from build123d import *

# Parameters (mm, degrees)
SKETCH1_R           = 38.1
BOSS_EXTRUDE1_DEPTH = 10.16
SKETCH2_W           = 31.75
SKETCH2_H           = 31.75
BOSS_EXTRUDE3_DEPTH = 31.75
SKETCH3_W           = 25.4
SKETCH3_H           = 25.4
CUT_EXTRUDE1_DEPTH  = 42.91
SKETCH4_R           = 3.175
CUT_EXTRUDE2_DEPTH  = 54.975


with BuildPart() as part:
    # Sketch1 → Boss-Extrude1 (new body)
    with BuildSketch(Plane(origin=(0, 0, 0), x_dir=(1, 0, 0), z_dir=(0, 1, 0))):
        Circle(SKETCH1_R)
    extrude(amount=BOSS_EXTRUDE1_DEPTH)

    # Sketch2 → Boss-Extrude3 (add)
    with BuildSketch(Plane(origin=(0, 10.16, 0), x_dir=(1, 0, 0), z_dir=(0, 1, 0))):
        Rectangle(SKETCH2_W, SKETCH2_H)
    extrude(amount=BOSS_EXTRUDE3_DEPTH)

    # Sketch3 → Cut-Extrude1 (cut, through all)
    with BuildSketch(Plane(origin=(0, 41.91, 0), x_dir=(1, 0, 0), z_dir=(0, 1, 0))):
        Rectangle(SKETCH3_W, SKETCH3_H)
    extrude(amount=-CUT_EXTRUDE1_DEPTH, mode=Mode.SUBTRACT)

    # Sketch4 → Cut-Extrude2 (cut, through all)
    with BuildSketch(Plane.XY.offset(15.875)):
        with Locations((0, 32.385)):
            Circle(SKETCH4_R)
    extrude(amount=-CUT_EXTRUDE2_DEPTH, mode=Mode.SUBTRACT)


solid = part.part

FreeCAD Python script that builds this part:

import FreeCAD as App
import Part
import Sketcher

V = App.Vector
Q = App.Units.Quantity


def add_polygon(sketch, points):
    """Adds a closed chain of lines whose ends are joined by coincident constraints."""
    first, n = sketch.GeometryCount, len(points)
    for a, b in zip(points, points[1:] + points[:1]):
        sketch.addGeometry(Part.LineSegment(App.Vector(*a, 0), App.Vector(*b, 0)), False)
    for i in range(n):
        sketch.addConstraint(Sketcher.Constraint("Coincident", first + i, 2, first + (i + 1) % n, 1))

doc = App.newDocument("Part")
body = doc.addObject("PartDesign::Body", "Body")

sketch1 = doc.addObject("Sketcher::SketchObject", "Sketch")
body.addObject(sketch1)
sketch1.AttachmentSupport = (doc.XZ_Plane, [""])
sketch1.MapMode = "FlatFace"
sketch1.addGeometry(Part.Circle(V(0, 0, 0), V(0, 0, 1), 38), False)
sketch1.addConstraint(Sketcher.Constraint("Coincident", 0, 3, -1, 1))
sketch1.addConstraint(Sketcher.Constraint("Diameter", 0, Q("3 in")))
pad1 = doc.addObject("PartDesign::Pad", "Pad")
body.addObject(pad1)
pad1.Profile = sketch1
pad1.Length = Q("0.4 in")
pad1.Reversed = True

sketch2 = doc.addObject("Sketcher::SketchObject", "Sketch001")
body.addObject(sketch2)
sketch2.AttachmentSupport = (doc.XZ_Plane, [""])
sketch2.MapMode = "FlatFace"
sketch2.AttachmentOffset = App.Placement(V(0, 0, -0.4 * 25.4), App.Rotation())
add_polygon(sketch2, [(-16, -16), (-16, 16), (16, 16), (16, -16)])
sketch2.addConstraint(Sketcher.Constraint("Vertical", 0))
sketch2.addConstraint(Sketcher.Constraint("Horizontal", 1))
sketch2.addConstraint(Sketcher.Constraint("Vertical", 2))
sketch2.addConstraint(Sketcher.Constraint("Horizontal", 3))
sketch2.addConstraint(Sketcher.Constraint("Symmetric", 0, 2, 2, 2, -1, 1))
sketch2.addConstraint(Sketcher.Constraint("Equal", 3, 0))
sketch2.addConstraint(Sketcher.Constraint("DistanceX", 1, 1, 1, 2, Q("1.25 in")))
pad2 = doc.addObject("PartDesign::Pad", "Pad001")
body.addObject(pad2)
pad2.Profile = sketch2
pad2.Length = Q("1.25 in")
pad2.Reversed = True

sketch3 = doc.addObject("Sketcher::SketchObject", "Sketch002")
body.addObject(sketch3)
sketch3.AttachmentSupport = (doc.XZ_Plane, [""])
sketch3.MapMode = "FlatFace"
sketch3.AttachmentOffset = App.Placement(V(0, 0, -1.65 * 25.4), App.Rotation())
add_polygon(sketch3, [(-13, -13), (-13, 13), (13, 13), (13, -13)])
sketch3.addConstraint(Sketcher.Constraint("Vertical", 0))
sketch3.addConstraint(Sketcher.Constraint("Horizontal", 1))
sketch3.addConstraint(Sketcher.Constraint("Vertical", 2))
sketch3.addConstraint(Sketcher.Constraint("Horizontal", 3))
sketch3.addConstraint(Sketcher.Constraint("Symmetric", 0, 2, 2, 2, -1, 1))
sketch3.addConstraint(Sketcher.Constraint("Equal", 3, 0))
sketch3.addConstraint(Sketcher.Constraint("DistanceX", 1, 1, 1, 2, Q("1 in")))
pocket1 = doc.addObject("PartDesign::Pocket", "Pocket")
body.addObject(pocket1)
pocket1.Profile = sketch3
pocket1.Type = "ThroughAll"
pocket1.Reversed = True

sketch4 = doc.addObject("Sketcher::SketchObject", "Sketch003")
body.addObject(sketch4)
sketch4.AttachmentSupport = (doc.XY_Plane, [""])
sketch4.MapMode = "FlatFace"
sketch4.AttachmentOffset = App.Placement(V(0, 0, 0.625 * 25.4), App.Rotation())
sketch4.addGeometry(Part.Circle(V(0, 32.4, 0), V(0, 0, 1), 3.2), False)
sketch4.addConstraint(Sketcher.Constraint("PointOnObject", 0, 3, -2))
sketch4.addConstraint(Sketcher.Constraint("Diameter", 0, Q("0.25 in")))
sketch4.addConstraint(Sketcher.Constraint("DistanceY", -1, 1, 0, 3, Q("1.275 in")))
pocket2 = doc.addObject("PartDesign::Pocket", "Pocket001")
body.addObject(pocket2)
pocket2.Profile = sketch4
pocket2.Type = "ThroughAll"

doc.recompute()
